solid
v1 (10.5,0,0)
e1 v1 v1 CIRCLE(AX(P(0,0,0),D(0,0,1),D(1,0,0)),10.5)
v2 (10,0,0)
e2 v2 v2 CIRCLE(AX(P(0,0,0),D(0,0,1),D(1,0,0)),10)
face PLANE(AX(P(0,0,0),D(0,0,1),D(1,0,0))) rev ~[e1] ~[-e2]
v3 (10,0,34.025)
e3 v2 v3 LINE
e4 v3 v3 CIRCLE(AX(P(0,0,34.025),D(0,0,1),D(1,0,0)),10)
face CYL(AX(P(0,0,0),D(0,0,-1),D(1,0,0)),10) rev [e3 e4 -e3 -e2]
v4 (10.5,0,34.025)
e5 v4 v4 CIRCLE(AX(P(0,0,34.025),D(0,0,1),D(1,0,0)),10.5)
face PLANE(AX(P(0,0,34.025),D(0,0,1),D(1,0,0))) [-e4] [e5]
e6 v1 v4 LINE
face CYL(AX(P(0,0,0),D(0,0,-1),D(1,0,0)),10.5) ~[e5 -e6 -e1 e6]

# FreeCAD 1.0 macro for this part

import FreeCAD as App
import Part
import Sketcher

V = App.Vector
Q = App.Units.Quantity

doc = App.newDocument("Part")
body = doc.addObject("PartDesign::Body", "Body")

# Sketch on XY plane
sketch1 = body.newObject("Sketcher::SketchObject", "Sketch")
sketch1.AttachmentSupport = (doc.getObject("XY_Plane"), [""])
sketch1.MapMode = "FlatFace"
sketch1.addGeometry([
    Part.Circle(V(0, 0, 0), V(0, 0, 1), 10),
    Part.Circle(V(0, 0, 0), V(0, 0, 1), 10),
], False)
sketch1.addConstraint([
    Sketcher.Constraint("Coincident", 0, 3, -1, 1),
    Sketcher.Constraint("Coincident", 1, 3, -1, 1),
    Sketcher.Constraint("Diameter", 0, Q("21 mm")),
    Sketcher.Constraint("Diameter", 1, Q("20 mm")),
])
pad1 = body.newObject("PartDesign::Pad", "Pad")
pad1.Profile = sketch1
pad1.Length = 34.025

doc.recompute()
